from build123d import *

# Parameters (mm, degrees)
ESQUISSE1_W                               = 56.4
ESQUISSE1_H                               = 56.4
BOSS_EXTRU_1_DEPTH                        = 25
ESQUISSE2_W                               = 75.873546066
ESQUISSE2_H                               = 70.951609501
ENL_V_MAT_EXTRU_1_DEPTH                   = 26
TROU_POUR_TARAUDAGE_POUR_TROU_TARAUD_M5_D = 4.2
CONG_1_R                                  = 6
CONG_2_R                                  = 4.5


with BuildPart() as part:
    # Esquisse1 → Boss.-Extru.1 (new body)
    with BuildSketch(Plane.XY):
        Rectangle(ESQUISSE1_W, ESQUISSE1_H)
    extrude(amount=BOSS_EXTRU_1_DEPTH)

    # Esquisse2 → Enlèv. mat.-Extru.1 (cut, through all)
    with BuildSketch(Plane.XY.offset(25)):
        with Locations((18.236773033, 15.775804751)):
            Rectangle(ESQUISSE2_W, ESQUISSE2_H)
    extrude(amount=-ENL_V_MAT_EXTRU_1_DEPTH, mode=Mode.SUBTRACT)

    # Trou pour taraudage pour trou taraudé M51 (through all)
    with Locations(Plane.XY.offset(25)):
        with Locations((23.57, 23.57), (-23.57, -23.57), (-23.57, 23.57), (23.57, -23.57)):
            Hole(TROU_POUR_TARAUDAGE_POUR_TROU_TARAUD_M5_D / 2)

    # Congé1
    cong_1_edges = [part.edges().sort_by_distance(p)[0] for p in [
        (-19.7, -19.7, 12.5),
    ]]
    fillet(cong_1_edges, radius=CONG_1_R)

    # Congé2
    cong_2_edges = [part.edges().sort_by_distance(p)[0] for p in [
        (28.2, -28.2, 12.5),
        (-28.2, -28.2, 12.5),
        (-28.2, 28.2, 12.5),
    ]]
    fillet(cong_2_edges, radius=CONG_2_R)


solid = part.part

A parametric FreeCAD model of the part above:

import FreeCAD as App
import Part
import Sketcher

V = App.Vector


def edges_at(feature, points):
    """Names of the edges that pass closest to the given points."""
    edges = feature.Shape.Edges
    near = lambda p: min(range(len(edges)), key=lambda i: edges[i].distToShape(Part.Vertex(*p))[0])
    return sorted({f"Edge{near(p) + 1}" for p in points})

doc = App.newDocument("Part")
params = doc.addObject("Spreadsheet::Sheet", "Params")
for row, (alias, value) in enumerate([
    ("sketch1_width", "56.4 mm"),
    ("pad1_length", "25 mm"),
    ("sketch3_diameter", "4.2 mm"),
    ("hole_diameter", "4.2 mm"),
    ("fillet_radius", "6 mm"),
    ("fillet2_radius", "4.5 mm"),
], start=1):
    params.set(f"A{row}", alias)
    params.set(f"B{row}", "=" + value)
    params.setAlias(f"B{row}", alias)

body = doc.addObject("PartDesign::Body", "Body")

# Sketch on XY plane
sketch1 = body.newObject("Sketcher::SketchObject", "Sketch")
sketch1.AttachmentSupport = (doc.getObject("XY_Plane"), [""])
sketch1.MapMode = "FlatFace"
sketch1.addGeometry(Part.LineSegment(V(-28, 28, 0), V(-28, -28, 0)), False)
sketch1.addGeometry(Part.LineSegment(V(-28, -28, 0), V(28, -28, 0)), False)
sketch1.addGeometry(Part.LineSegment(V(28, -28, 0), V(28, 28, 0)), False)
sketch1.addGeometry(Part.LineSegment(V(28, 28, 0), V(-28, 28, 0)), False)
sketch1.addConstraint(Sketcher.Constraint("Coincident", 0, 2, 1, 1))
sketch1.addConstraint(Sketcher.Constraint("Coincident", 1, 2, 2, 1))
sketch1.addConstraint(Sketcher.Constraint("Coincident", 2, 2, 3, 1))
sketch1.addConstraint(Sketcher.Constraint("Coincident", 3, 2, 0, 1))
sketch1.addConstraint(Sketcher.Constraint("Vertical", 0))
sketch1.addConstraint(Sketcher.Constraint("Horizontal", 1))
sketch1.addConstraint(Sketcher.Constraint("Vertical", 2))
sketch1.addConstraint(Sketcher.Constraint("Horizontal", 3))
sketch1.addConstraint(Sketcher.Constraint("Symmetric", 0, 2, 2, 2, -1, 1))
sketch1.addConstraint(Sketcher.Constraint("Equal", 3, 0))
sketch1.addConstraint(Sketcher.Constraint("DistanceX", 1, 1, 1, 2, 56.4))
sketch1.setExpression("Constraints[10]", "Params.sketch1_width")
pad1 = body.newObject("PartDesign::Pad", "Pad")
pad1.Profile = sketch1
pad1.setExpression("Length", "Params.pad1_length")

# Sketch on XY plane
sketch2 = body.newObject("Sketcher::SketchObject", "Sketch001")
sketch2.AttachmentSupport = (doc.getObject("XY_Plane"), [""])
sketch2.MapMode = "FlatFace"
sketch2.AttachmentOffset = App.Placement(V(0, 0, 25), App.Rotation())
sketch2.addGeometry(Part.LineSegment(V(-20, 51, 0), V(-20, -20, 0)), False)
sketch2.addGeometry(Part.LineSegment(V(-20, -20, 0), V(56, -20, 0)), False)
sketch2.addGeometry(Part.LineSegment(V(56, -20, 0), V(56, 51, 0)), False)
sketch2.addGeometry(Part.LineSegment(V(56, 51, 0), V(-20, 51, 0)), False)
sketch2.addConstraint(Sketcher.Constraint("Coincident", 0, 2, 1, 1))
sketch2.addConstraint(Sketcher.Constraint("Coincident", 1, 2, 2, 1))
sketch2.addConstraint(Sketcher.Constraint("Coincident", 2, 2, 3, 1))
sketch2.addConstraint(Sketcher.Constraint("Coincident", 3, 2, 0, 1))
sketch2.addConstraint(Sketcher.Constraint("Vertical", 0))
sketch2.addConstraint(Sketcher.Constraint("Horizontal", 1))
sketch2.addConstraint(Sketcher.Constraint("Vertical", 2))
sketch2.addConstraint(Sketcher.Constraint("Horizontal", 3))
sketch2.addConstraint(Sketcher.Constraint("DistanceX", 0, 2, -1, 1, 19.7))
sketch2.addConstraint(Sketcher.Constraint("DistanceY", 0, 2, -1, 1, 19.7))
sketch2.addConstraint(Sketcher.Constraint("DistanceY", 0, 2, 0, 1, 70.951609))
sketch2.addConstraint(Sketcher.Constraint("DistanceX", 1, 1, 1, 2, 75.873546))
pocket1 = body.newObject("PartDesign::Pocket", "Pocket")
pocket1.Profile = sketch2
pocket1.Type = "ThroughAll"

# Sketch on XY plane
sketch3 = body.newObject("Sketcher::SketchObject", "Sketch002")
sketch3.AttachmentSupport = (doc.getObject("XY_Plane"), [""])
sketch3.MapMode = "FlatFace"
sketch3.AttachmentOffset = App.Placement(V(0, 0, 25), App.Rotation())
sketch3.addGeometry(Part.Circle(V(23.6, 23.6, 0), V(0, 0, 1), 2.1), False)
sketch3.addGeometry(Part.Circle(V(-23.6, -23.6, 0), V(0, 0, 1), 2.1), False)
sketch3.addGeometry(Part.Circle(V(-23.6, 23.6, 0), V(0, 0, 1), 2.1), False)
sketch3.addGeometry(Part.Circle(V(23.6, -23.6, 0), V(0, 0, 1), 2.1), False)
sketch3.addConstraint(Sketcher.Constraint("Equal", 0, 1))
sketch3.addConstraint(Sketcher.Constraint("Equal", 1, 2))
sketch3.addConstraint(Sketcher.Constraint("Equal", 2, 3))
sketch3.addConstraint(Sketcher.Constraint("Symmetric", 0, 3, 1, 3, -1, 1))
sketch3.addConstraint(Sketcher.Constraint("Symmetric", 2, 3, 3, 3, -1, 1))
sketch3.addConstraint(Sketcher.Constraint("Symmetric", 0, 3, 2, 3, -2))
sketch3.addConstraint(Sketcher.Constraint("Diameter", 0, 4.2))
sketch3.addConstraint(Sketcher.Constraint("DistanceX", -1, 1, 0, 3, 23.57))
sketch3.addConstraint(Sketcher.Constraint("DistanceY", -1, 1, 0, 3, 23.57))
sketch3.setExpression("Constraints[6]", "Params.sketch3_diameter")
doc.recompute()
hole = body.newObject("PartDesign::Hole", "Hole")
hole.Profile = sketch3
hole.ThreadType = "None"
hole.setExpression("Diameter", "Params.hole_diameter")
hole.DepthType = "ThroughAll"
doc.recompute()

fillet = body.newObject("PartDesign::Fillet", "Fillet")
fillet.Base = (hole, edges_at(hole, [(-19.7, -19.7, 12.5)]))
fillet.setExpression("Radius", "Params.fillet_radius")
doc.recompute()

fillet2 = body.newObject("PartDesign::Fillet", "Fillet001")
fillet2.Base = (fillet, edges_at(fillet, [(28.2, -28.2, 12.5), (-28.2, -28.2, 12.5), (-28.2, 28.2, 12.5)]))
fillet2.setExpression("Radius", "Params.fillet2_radius")

doc.recompute()
